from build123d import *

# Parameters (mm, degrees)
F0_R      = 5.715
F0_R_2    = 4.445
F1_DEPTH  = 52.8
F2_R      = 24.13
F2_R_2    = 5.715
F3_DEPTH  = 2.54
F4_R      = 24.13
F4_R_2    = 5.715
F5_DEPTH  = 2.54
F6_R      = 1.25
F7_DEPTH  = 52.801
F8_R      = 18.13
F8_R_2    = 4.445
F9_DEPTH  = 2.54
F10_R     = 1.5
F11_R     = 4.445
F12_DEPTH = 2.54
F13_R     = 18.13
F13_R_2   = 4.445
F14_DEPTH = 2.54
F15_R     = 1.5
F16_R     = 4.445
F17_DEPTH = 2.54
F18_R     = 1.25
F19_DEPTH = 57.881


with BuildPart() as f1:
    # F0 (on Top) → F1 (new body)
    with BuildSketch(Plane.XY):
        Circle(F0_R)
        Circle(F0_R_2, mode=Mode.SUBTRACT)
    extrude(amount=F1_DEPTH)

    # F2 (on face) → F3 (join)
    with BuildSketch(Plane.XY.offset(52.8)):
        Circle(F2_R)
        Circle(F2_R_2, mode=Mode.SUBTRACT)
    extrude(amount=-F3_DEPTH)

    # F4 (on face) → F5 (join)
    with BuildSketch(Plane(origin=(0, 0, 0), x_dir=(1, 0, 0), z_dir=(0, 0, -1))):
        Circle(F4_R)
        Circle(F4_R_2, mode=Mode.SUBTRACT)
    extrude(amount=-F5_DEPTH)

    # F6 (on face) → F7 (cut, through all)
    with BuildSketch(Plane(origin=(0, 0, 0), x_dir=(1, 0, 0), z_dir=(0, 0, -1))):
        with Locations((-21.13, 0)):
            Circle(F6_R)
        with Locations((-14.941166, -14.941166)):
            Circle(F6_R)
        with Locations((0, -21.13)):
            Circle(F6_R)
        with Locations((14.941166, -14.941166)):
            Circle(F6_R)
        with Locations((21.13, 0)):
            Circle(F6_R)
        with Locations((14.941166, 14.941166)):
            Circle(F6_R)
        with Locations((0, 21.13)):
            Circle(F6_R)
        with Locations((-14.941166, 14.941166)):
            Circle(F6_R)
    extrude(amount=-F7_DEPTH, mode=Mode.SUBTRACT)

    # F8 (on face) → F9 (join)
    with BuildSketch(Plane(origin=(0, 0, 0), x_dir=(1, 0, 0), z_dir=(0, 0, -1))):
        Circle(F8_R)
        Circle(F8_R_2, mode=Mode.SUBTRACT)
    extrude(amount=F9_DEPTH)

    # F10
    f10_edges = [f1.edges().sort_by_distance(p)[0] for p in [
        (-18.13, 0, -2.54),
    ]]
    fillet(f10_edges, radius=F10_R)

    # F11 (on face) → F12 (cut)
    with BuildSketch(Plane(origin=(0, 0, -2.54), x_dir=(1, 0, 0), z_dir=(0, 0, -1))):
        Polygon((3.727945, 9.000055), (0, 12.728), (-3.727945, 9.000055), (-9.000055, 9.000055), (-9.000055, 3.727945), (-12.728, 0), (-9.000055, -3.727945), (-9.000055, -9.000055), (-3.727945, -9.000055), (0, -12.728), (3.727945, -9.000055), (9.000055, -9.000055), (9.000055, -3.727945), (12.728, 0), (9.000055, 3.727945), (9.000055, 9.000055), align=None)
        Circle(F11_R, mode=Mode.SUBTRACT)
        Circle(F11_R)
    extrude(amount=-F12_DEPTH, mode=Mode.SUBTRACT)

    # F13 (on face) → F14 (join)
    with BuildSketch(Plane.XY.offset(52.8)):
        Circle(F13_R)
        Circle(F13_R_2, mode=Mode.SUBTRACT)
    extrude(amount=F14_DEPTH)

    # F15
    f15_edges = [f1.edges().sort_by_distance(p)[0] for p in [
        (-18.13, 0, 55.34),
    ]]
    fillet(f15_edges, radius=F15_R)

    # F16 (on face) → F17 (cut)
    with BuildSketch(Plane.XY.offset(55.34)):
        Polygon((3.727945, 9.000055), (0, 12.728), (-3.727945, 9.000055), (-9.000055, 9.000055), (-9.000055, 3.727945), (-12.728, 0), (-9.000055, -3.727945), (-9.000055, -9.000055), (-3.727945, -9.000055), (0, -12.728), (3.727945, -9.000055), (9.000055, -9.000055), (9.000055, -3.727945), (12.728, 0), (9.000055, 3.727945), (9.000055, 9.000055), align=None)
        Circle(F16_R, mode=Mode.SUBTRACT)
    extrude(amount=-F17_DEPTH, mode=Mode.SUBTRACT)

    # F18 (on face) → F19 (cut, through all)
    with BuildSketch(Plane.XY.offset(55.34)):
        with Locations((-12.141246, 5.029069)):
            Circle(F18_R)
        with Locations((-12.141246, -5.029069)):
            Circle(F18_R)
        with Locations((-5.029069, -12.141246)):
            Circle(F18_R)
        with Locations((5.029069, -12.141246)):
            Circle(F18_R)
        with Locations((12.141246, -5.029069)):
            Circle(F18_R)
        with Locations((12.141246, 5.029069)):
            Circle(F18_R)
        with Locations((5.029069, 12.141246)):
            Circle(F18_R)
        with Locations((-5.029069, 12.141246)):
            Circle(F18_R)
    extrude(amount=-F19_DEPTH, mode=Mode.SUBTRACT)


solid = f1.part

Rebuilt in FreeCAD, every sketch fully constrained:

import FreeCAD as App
import Part
import Sketcher
from FreeCAD import Vector
Q = App.Units.Quantity


def edges_at(feature, points):
    """Names of the edges that pass closest to the given points."""
    edges = feature.Shape.Edges
    near = lambda p: min(range(len(edges)), key=lambda i: edges[i].distToShape(Part.Vertex(*p))[0])
    return sorted({f"Edge{near(p) + 1}" for p in points})


def add_polygon(sketch, points):
    """Adds a closed chain of lines whose ends are joined by coincident constraints."""
    first, n = sketch.GeometryCount, len(points)
    for a, b in zip(points, points[1:] + points[:1]):
        sketch.addGeometry(Part.LineSegment(App.Vector(*a, 0), App.Vector(*b, 0)), False)
    for i in range(n):
        sketch.addConstraint(Sketcher.Constraint("Coincident", first + i, 2, first + (i + 1) % n, 1))

doc = App.newDocument("Part")
body = doc.addObject("PartDesign::Body", "Body")

sketch1 = body.newObject("Sketcher::SketchObject", "Sketch")
sketch1.AttachmentSupport = (doc.getObject("XY_Plane"), [""])
sketch1.MapMode = "FlatFace"
sketch1.addGeometry([
    Part.Circle(Vector(0, 0, 0), Vector(0, 0, 1), 5.7),
    Part.Circle(Vector(0, 0, 0), Vector(0, 0, 1), 4.4),
], False)
sketch1.addConstraint([
    Sketcher.Constraint("Coincident", 0, 3, -1, 1),
    Sketcher.Constraint("Coincident", 1, 3, -1, 1),
    Sketcher.Constraint("Diameter", 0, Q("0.45 in")),
    Sketcher.Constraint("Diameter", 1, Q("0.35 in")),
])
pad1 = body.newObject("PartDesign::Pad", "Pad")
pad1.Profile = sketch1
pad1.Length = 52.8

sketch2 = body.newObject("Sketcher::SketchObject", "Sketch001")
sketch2.AttachmentSupport = (doc.getObject("XY_Plane"), [""])
sketch2.MapMode = "FlatFace"
sketch2.AttachmentOffset = App.Placement(Vector(0, 0, 52.8), App.Rotation())
sketch2.addGeometry([
    Part.Circle(Vector(0, 0, 0), Vector(0, 0, 1), 24),
    Part.Circle(Vector(0, 0, 0), Vector(0, 0, 1), 6),
], False)
sketch2.addConstraint([
    Sketcher.Constraint("Coincident", 0, 3, -1, 1),
    Sketcher.Constraint("Coincident", 1, 3, -1, 1),
    Sketcher.Constraint("Diameter", 0, Q("1.9 in")),
    Sketcher.Constraint("Diameter", 1, Q("0.45 in")),
])
pad2 = body.newObject("PartDesign::Pad", "Pad001")
pad2.Profile = sketch2
pad2.Length = Q("0.1 in")
pad2.Reversed = True

sketch3 = body.newObject("Sketcher::SketchObject", "Sketch002")
sketch3.AttachmentSupport = (doc.getObject("XY_Plane"), [""])
sketch3.MapMode = "FlatFace"
sketch3.addGeometry([
    Part.Circle(Vector(0, 0, 0), Vector(0, 0, 1), 24),
    Part.Circle(Vector(0, 0, 0), Vector(0, 0, 1), 6),
], False)
sketch3.addConstraint([
    Sketcher.Constraint("Coincident", 0, 3, -1, 1),
    Sketcher.Constraint("Coincident", 1, 3, -1, 1),
    Sketcher.Constraint("Diameter", 0, Q("1.9 in")),
    Sketcher.Constraint("Diameter", 1, Q("0.45 in")),
])
pad3 = body.newObject("PartDesign::Pad", "Pad002")
pad3.Profile = sketch3
pad3.Length = Q("0.1 in")

sketch4 = body.newObject("Sketcher::SketchObject", "Sketch003")
sketch4.AttachmentSupport = (doc.getObject("XY_Plane"), [""])
sketch4.MapMode = "FlatFace"
sketch4.addGeometry([
    Part.Circle(Vector(-21.1, 0, 0), Vector(0, 0, 1), 1.2),
    Part.Circle(Vector(-14.9, 14.9, 0), Vector(0, 0, 1), 1.2),
    Part.Circle(Vector(0, 21.1, 0), Vector(0, 0, 1), 1.2),
    Part.Circle(Vector(14.9, 14.9, 0), Vector(0, 0, 1), 1.2),
    Part.Circle(Vector(21.1, 0, 0), Vector(0, 0, 1), 1.2),
    Part.Circle(Vector(14.9, -14.9, 0), Vector(0, 0, 1), 1.2),
    Part.Circle(Vector(0, -21.1, 0), Vector(0, 0, 1), 1.2),
    Part.Circle(Vector(-14.9, -14.9, 0), Vector(0, 0, 1), 1.2),
], False)
sketch4.addConstraint([
    Sketcher.Constraint("Equal", 0, 1),
    Sketcher.Constraint("Equal", 1, 2),
    Sketcher.Constraint("Equal", 2, 3),
    Sketcher.Constraint("Equal", 3, 4),
    Sketcher.Constraint("Equal", 4, 5),
    Sketcher.Constraint("Equal", 5, 6),
    Sketcher.Constraint("Equal", 6, 7),
    Sketcher.Constraint("Symmetric", 0, 3, 4, 3, -1, 1),
    Sketcher.Constraint("Symmetric", 1, 3, 5, 3, -1, 1),
    Sketcher.Constraint("Symmetric", 2, 3, 6, 3, -1, 1),
    Sketcher.Constraint("Symmetric", 3, 3, 7, 3, -1, 1),
    Sketcher.Constraint("Symmetric", 1, 3, 3, 3, -2),
    Sketcher.Constraint("PointOnObject", 0, 3, -1),
    Sketcher.Constraint("PointOnObject", 2, 3, -2),
    Sketcher.Constraint("Diameter", 0, 2.5),
    Sketcher.Constraint("DistanceX", 0, 3, -1, 1, 21.13),
    Sketcher.Constraint("DistanceY", -1, 1, 2, 3, 21.13),
    Sketcher.Constraint("DistanceX", 1, 3, -1, 1, 14.941166),
    Sketcher.Constraint("DistanceY", -1, 1, 1, 3, 14.941166),
])
pocket1 = body.newObject("PartDesign::Pocket", "Pocket")
pocket1.Profile = sketch4
pocket1.Type = "ThroughAll"
pocket1.Reversed = True

sketch5 = body.newObject("Sketcher::SketchObject", "Sketch004")
sketch5.AttachmentSupport = (doc.getObject("XY_Plane"), [""])
sketch5.MapMode = "FlatFace"
sketch5.addGeometry([
    Part.Circle(Vector(0, 0, 0), Vector(0, 0, 1), 18.1),
    Part.Circle(Vector(0, 0, 0), Vector(0, 0, 1), 4.4),
], False)
sketch5.addConstraint([
    Sketcher.Constraint("Coincident", 0, 3, -1, 1),
    Sketcher.Constraint("Coincident", 1, 3, -1, 1),
    Sketcher.Constraint("Diameter", 1, Q("0.35 in")),
    Sketcher.Constraint("Diameter", 0, 36.26),
])
pad4 = body.newObject("PartDesign::Pad", "Pad003")
pad4.Profile = sketch5
pad4.Length = Q("0.1 in")
pad4.Reversed = True
doc.recompute()

fillet = body.newObject("PartDesign::Fillet", "Fillet")
fillet.Base = (pad4, edges_at(pad4, [(-18.13, 0, -2.54)]))
fillet.Radius = 1.5

sketch6 = body.newObject("Sketcher::SketchObject", "Sketch005")
sketch6.AttachmentSupport = (doc.getObject("XY_Plane"), [""])
sketch6.MapMode = "FlatFace"
sketch6.AttachmentOffset = App.Placement(Vector(0, 0, -0.1 * 25.4), App.Rotation())
add_polygon(sketch6, [(4, -9), (0, -13), (-4, -9), (-9, -9), (-9, -4), (-13, 0), (-9, 4), (-9, 9), (-4, 9), (0, 13), (4, 9), (9, 9), (9, 4), (13, 0), (9, -4), (9, -9)])
sketch6.addConstraint([
    Sketcher.Constraint("Horizontal", 2),
    Sketcher.Constraint("Vertical", 3),
    Sketcher.Constraint("Vertical", 6),
    Sketcher.Constraint("Horizontal", 7),
    Sketcher.Constraint("Horizontal", 10),
    Sketcher.Constraint("Vertical", 11),
    Sketcher.Constraint("Vertical", 14),
    Sketcher.Constraint("Horizontal", 15),
    Sketcher.Constraint("Symmetric", 0, 2, 8, 2, -1, 1),
    Sketcher.Constraint("Symmetric", 1, 2, 9, 2, -1, 1),
    Sketcher.Constraint("Symmetric", 3, 2, 11, 2, -1, 1),
    Sketcher.Constraint("Symmetric", 4, 2, 12, 2, -1, 1),
    Sketcher.Constraint("Symmetric", 5, 2, 13, 2, -1, 1),
    Sketcher.Constraint("Symmetric", 7, 2, 15, 2, -1, 1),
    Sketcher.Constraint("Symmetric", 7, 2, 9, 2, -2),
    Sketcher.Constraint("Symmetric", 5, 2, 11, 2, -2),
    Sketcher.Constraint("PointOnObject", 0, 2, -2),
    Sketcher.Constraint("PointOnObject", 4, 2, -1),
    Sketcher.Constraint("Perpendicular", 0, 1),
    Sketcher.Constraint("Parallel", 1, 4),
    Sketcher.Constraint("Equal", 15, 3),
    Sketcher.Constraint("Equal", 1, 4),
    Sketcher.Constraint("DistanceX", 2, 2, 2, 1, 5.27211),
    Sketcher.Constraint("DistanceY", 0, 2, -1, 1, 12.728),
])
pocket2 = body.newObject("PartDesign::Pocket", "Pocket001")
pocket2.Profile = sketch6
pocket2.Length = Q("0.1 in")
pocket2.Reversed = True

sketch7 = body.newObject("Sketcher::SketchObject", "Sketch006")
sketch7.AttachmentSupport = (doc.getObject("XY_Plane"), [""])
sketch7.MapMode = "FlatFace"
sketch7.AttachmentOffset = App.Placement(Vector(0, 0, 52.8), App.Rotation())
sketch7.addGeometry([
    Part.Circle(Vector(0, 0, 0), Vector(0, 0, 1), 18.1),
    Part.Circle(Vector(0, 0, 0), Vector(0, 0, 1), 4.4),
], False)
sketch7.addConstraint([
    Sketcher.Constraint("Coincident", 0, 3, -1, 1),
    Sketcher.Constraint("Coincident", 1, 3, -1, 1),
    Sketcher.Constraint("Diameter", 1, Q("0.35 in")),
    Sketcher.Constraint("Diameter", 0, 36.26),
])
pad5 = body.newObject("PartDesign::Pad", "Pad004")
pad5.Profile = sketch7
pad5.Length = Q("0.1 in")
doc.recompute()

fillet2 = body.newObject("PartDesign::Fillet", "Fillet001")
fillet2.Base = (pad5, edges_at(pad5, [(-18.13, 0, 55.34)]))
fillet2.Radius = 1.5

sketch8 = body.newObject("Sketcher::SketchObject", "Sketch007")
sketch8.AttachmentSupport = (doc.getObject("XY_Plane"), [""])
sketch8.MapMode = "FlatFace"
sketch8.AttachmentOffset = App.Placement(Vector(0, 0, 55.34), App.Rotation())
add_polygon(sketch8, [(3.7, 9), (0, 12.7), (-3.7, 9), (-9, 9), (-9, 3.7), (-12.7, 0), (-9, -3.7), (-9, -9), (-3.7, -9), (0, -12.7), (3.7, -9), (9, -9), (9, -3.7), (12.7, 0), (9, 3.7), (9, 9)])
sketch8.addGeometry(Part.Circle(Vector(0, 0, 0), Vector(0, 0, 1), 4.4), False)
sketch8.addConstraint([
    Sketcher.Constraint("Horizontal", 2),
    Sketcher.Constraint("Vertical", 3),
    Sketcher.Constraint("Vertical", 6),
    Sketcher.Constraint("Horizontal", 7),
    Sketcher.Constraint("Horizontal", 10),
    Sketcher.Constraint("Vertical", 11),
    Sketcher.Constraint("Vertical", 14),
    Sketcher.Constraint("Horizontal", 15),
    Sketcher.Constraint("Coincident", 16, 3, -1, 1),
    Sketcher.Constraint("Symmetric", 0, 2, 8, 2, -1, 1),
    Sketcher.Constraint("Symmetric", 1, 2, 9, 2, -1, 1),
    Sketcher.Constraint("Symmetric", 3, 2, 11, 2, -1, 1),
    Sketcher.Constraint("Symmetric", 4, 2, 12, 2, -1, 1),
    Sketcher.Constraint("Symmetric", 5, 2, 13, 2, -1, 1),
    Sketcher.Constraint("Symmetric", 7, 2, 15, 2, -1, 1),
    Sketcher.Constraint("Symmetric", 7, 2, 9, 2, -2),
    Sketcher.Constraint("Symmetric", 5, 2, 11, 2, -2),
    Sketcher.Constraint("PointOnObject", 0, 2, -2),
    Sketcher.Constraint("PointOnObject", 4, 2, -1),
    Sketcher.Constraint("Perpendicular", 0, 1),
    Sketcher.Constraint("Parallel", 1, 4),
    Sketcher.Constraint("Equal", 15, 3),
    Sketcher.Constraint("Equal", 1, 4),
    Sketcher.Constraint("Diameter", 16, Q("0.35 in")),
    Sketcher.Constraint("DistanceX", 2, 2, 2, 1, 5.27211),
    Sketcher.Constraint("DistanceY", -1, 1, 0, 2, 12.728),
])
pocket3 = body.newObject("PartDesign::Pocket", "Pocket002")
pocket3.Profile = sketch8
pocket3.Length = Q("0.1 in")

sketch9 = body.newObject("Sketcher::SketchObject", "Sketch008")
sketch9.AttachmentSupport = (doc.getObject("XY_Plane"), [""])
sketch9.MapMode = "FlatFace"
sketch9.AttachmentOffset = App.Placement(Vector(0, 0, 55.34), App.Rotation())
sketch9.addGeometry([
    Part.Circle(Vector(-12.1, 5, 0), Vector(0, 0, 1), 1.2),
    Part.Circle(Vector(-12.1, -5, 0), Vector(0, 0, 1), 1.2),
    Part.Circle(Vector(-5, -12.1, 0), Vector(0, 0, 1), 1.2),
    Part.Circle(Vector(5, -12.1, 0), Vector(0, 0, 1), 1.2),
    Part.Circle(Vector(12.1, -5, 0), Vector(0, 0, 1), 1.2),
    Part.Circle(Vector(12.1, 5, 0), Vector(0, 0, 1), 1.2),
    Part.Circle(Vector(5, 12.1, 0), Vector(0, 0, 1), 1.2),
    Part.Circle(Vector(-5, 12.1, 0), Vector(0, 0, 1), 1.2),
], False)
sketch9.addConstraint([
    Sketcher.Constraint("Equal", 0, 1),
    Sketcher.Constraint("Equal", 1, 2),
    Sketcher.Constraint("Equal", 2, 3),
    Sketcher.Constraint("Equal", 3, 4),
    Sketcher.Constraint("Equal", 4, 5),
    Sketcher.Constraint("Equal", 5, 6),
    Sketcher.Constraint("Equal", 6, 7),
    Sketcher.Constraint("Symmetric", 0, 3, 4, 3, -1, 1),
    Sketcher.Constraint("Symmetric", 1, 3, 5, 3, -1, 1),
    Sketcher.Constraint("Symmetric", 2, 3, 6, 3, -1, 1),
    Sketcher.Constraint("Symmetric", 3, 3, 7, 3, -1, 1),
    Sketcher.Constraint("Symmetric", 2, 3, 3, 3, -2),
    Sketcher.Constraint("Symmetric", 1, 3, 4, 3, -2),
    Sketcher.Constraint("Diameter", 0, 2.5),
    Sketcher.Constraint("DistanceY", -1, 1, 0, 3, 5.029069),
    Sketcher.Constraint("DistanceX", 2, 3, -1, 1, 5.029069),
    Sketcher.Constraint("DistanceX", 0, 3, -1, 1, 12.141246),
    Sketcher.Constraint("DistanceY", 2, 3, -1, 1, 12.141246),
])
pocket4 = body.newObject("PartDesign::Pocket", "Pocket003")
pocket4.Profile = sketch9
pocket4.Type = "ThroughAll"

doc.recompute()
